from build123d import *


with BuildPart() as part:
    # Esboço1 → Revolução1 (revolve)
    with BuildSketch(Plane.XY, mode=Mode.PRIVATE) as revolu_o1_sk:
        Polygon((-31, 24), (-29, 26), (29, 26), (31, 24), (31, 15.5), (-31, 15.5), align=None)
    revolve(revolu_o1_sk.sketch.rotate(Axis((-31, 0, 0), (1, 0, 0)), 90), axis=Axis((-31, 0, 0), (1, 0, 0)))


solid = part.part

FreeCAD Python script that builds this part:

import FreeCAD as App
import Part
import Sketcher

doc = App.newDocument("Part")
body = doc.addObject("PartDesign::Body", "Body")

# Sketch on XY plane
sketch1 = doc.addObject("Sketcher::SketchObject", "Sketch")
body.addObject(sketch1)
sketch1.AttachmentSupport = (doc.XY_Plane, [""])
sketch1.MapMode = "FlatFace"
sketch1.addGeometry([
    Part.LineSegment(App.Vector(-29, 26, 0), App.Vector(-31, 24, 0)),  # 0
    Part.LineSegment(App.Vector(-31, 24, 0), App.Vector(-31, 15.5, 0)),  # 1
    Part.LineSegment(App.Vector(-31, 15.5, 0), App.Vector(31, 15.5, 0)),  # 2
    Part.LineSegment(App.Vector(31, 15.5, 0), App.Vector(31, 24, 0)),  # 3
    Part.LineSegment(App.Vector(31, 24, 0), App.Vector(29, 26, 0)),  # 4
    Part.LineSegment(App.Vector(29, 26, 0), App.Vector(-29, 26, 0)),  # 5
], False)
sketch1.addConstraint([
    Sketcher.Constraint("Coincident", 0, 2, 1, 1),
    Sketcher.Constraint("Coincident", 1, 2, 2, 1),
    Sketcher.Constraint("Coincident", 2, 2, 3, 1),
    Sketcher.Constraint("Coincident", 3, 2, 4, 1),
    Sketcher.Constraint("Coincident", 4, 2, 5, 1),
    Sketcher.Constraint("Coincident", 5, 2, 0, 1),
    Sketcher.Constraint("Vertical", 1),
    Sketcher.Constraint("Horizontal", 2),
    Sketcher.Constraint("Vertical", 3),
    Sketcher.Constraint("Horizontal", 5),
    Sketcher.Constraint("Symmetric", 0, 2, 3, 2, -2),
    Sketcher.Constraint("Perpendicular", 0, 4),
    Sketcher.Constraint("Equal", 0, 4),
    Sketcher.Constraint("DistanceX", 2, 1, 2, 2, 62.0),
    Sketcher.Constraint("DistanceX", 5, 2, 5, 1, 58.0),
    Sketcher.Constraint("DistanceY", 1, 2, 1, 1, 8.5),
    Sketcher.Constraint("DistanceY", -1, 1, 0, 2, 24.0),
])
revolution = doc.addObject("PartDesign::Revolution", "Revolution")
body.addObject(revolution)
revolution.Profile = sketch1
revolution.ReferenceAxis = (sketch1, ["H_Axis"])
revolution.Angle = 360

doc.recompute()
